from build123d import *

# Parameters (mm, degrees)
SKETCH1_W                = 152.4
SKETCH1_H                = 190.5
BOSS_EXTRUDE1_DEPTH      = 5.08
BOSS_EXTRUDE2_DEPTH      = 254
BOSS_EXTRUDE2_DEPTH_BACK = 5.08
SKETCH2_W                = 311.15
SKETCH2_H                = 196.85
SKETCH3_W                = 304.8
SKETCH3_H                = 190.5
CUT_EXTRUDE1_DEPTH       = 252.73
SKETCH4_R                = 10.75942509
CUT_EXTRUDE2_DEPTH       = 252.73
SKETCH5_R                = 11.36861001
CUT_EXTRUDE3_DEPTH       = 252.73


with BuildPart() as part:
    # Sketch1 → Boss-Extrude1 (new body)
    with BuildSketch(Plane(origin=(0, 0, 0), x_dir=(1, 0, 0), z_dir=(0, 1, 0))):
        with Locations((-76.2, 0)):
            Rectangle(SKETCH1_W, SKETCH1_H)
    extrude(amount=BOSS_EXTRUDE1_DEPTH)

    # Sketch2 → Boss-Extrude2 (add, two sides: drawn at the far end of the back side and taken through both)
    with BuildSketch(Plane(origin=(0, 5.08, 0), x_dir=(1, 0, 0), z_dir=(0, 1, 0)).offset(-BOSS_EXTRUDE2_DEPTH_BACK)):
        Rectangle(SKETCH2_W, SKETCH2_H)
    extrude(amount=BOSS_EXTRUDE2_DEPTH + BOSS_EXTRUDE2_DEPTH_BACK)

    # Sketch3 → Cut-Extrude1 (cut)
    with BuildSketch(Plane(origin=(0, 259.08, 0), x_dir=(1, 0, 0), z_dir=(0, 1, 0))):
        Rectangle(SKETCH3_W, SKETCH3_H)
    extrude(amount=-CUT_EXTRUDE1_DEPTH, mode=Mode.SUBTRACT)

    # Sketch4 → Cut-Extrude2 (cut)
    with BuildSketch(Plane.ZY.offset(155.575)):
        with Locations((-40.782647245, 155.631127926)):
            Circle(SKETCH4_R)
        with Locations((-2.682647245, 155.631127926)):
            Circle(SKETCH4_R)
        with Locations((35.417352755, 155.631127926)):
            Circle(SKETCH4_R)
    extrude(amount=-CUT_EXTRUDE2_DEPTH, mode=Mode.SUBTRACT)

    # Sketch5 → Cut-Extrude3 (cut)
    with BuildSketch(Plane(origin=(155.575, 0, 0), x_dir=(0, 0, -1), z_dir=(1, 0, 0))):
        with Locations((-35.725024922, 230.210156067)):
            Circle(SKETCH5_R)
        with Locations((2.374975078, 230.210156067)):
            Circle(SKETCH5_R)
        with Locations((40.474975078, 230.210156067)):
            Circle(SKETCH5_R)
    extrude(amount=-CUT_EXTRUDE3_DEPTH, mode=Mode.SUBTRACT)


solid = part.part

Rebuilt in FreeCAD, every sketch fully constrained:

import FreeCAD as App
import Part
import Sketcher
from FreeCAD import Vector
Q = App.Units.Quantity

doc = App.newDocument("Part")
body = doc.addObject("PartDesign::Body", "Body")

sketch1 = body.newObject("Sketcher::SketchObject", "Sketch")
sketch1.AttachmentSupport = (doc.getObject("XZ_Plane"), [""])
sketch1.MapMode = "FlatFace"
sketch1.addGeometry([
    Part.LineSegment(Vector(-152.4, -95.25, 0), Vector(-152.4, 95.25, 0)),
    Part.LineSegment(Vector(-152.4, 95.25, 0), Vector(0, 95.25, 0)),
    Part.LineSegment(Vector(0, 95.25, 0), Vector(0, -95.25, 0)),
    Part.LineSegment(Vector(0, -95.25, 0), Vector(-152.4, -95.25, 0)),
], False)
sketch1.addConstraint([
    Sketcher.Constraint("Coincident", 0, 2, 1, 1),
    Sketcher.Constraint("Coincident", 1, 2, 2, 1),
    Sketcher.Constraint("Coincident", 2, 2, 3, 1),
    Sketcher.Constraint("Coincident", 3, 2, 0, 1),
    Sketcher.Constraint("Vertical", 0),
    Sketcher.Constraint("Horizontal", 1),
    Sketcher.Constraint("Vertical", 2),
    Sketcher.Constraint("Horizontal", 3),
    Sketcher.Constraint("Symmetric", 1, 2, 2, 2, -1, 1),
    Sketcher.Constraint("DistanceX", 1, 1, 1, 2, Q("6 in")),
    Sketcher.Constraint("DistanceY", 0, 1, 0, 2, Q("7.5 in")),
])
pad1 = body.newObject("PartDesign::Pad", "Pad")
pad1.Profile = sketch1
pad1.Length = Q("0.2 in")
pad1.Reversed = True

sketch2 = body.newObject("Sketcher::SketchObject", "Sketch001")
sketch2.AttachmentSupport = (doc.getObject("XZ_Plane"), [""])
sketch2.MapMode = "FlatFace"
sketch2.AttachmentOffset = App.Placement(Vector(0, 0, -0.2 * 25.4), App.Rotation())
sketch2.addGeometry([
    Part.LineSegment(Vector(-155.575, -98.425, 0), Vector(-155.575, 98.425, 0)),
    Part.LineSegment(Vector(-155.575, 98.425, 0), Vector(155.575, 98.425, 0)),
    Part.LineSegment(Vector(155.575, 98.425, 0), Vector(155.575, -98.425, 0)),
    Part.LineSegment(Vector(155.575, -98.425, 0), Vector(-155.575, -98.425, 0)),
], False)
sketch2.addConstraint([
    Sketcher.Constraint("Coincident", 0, 2, 1, 1),
    Sketcher.Constraint("Coincident", 1, 2, 2, 1),
    Sketcher.Constraint("Coincident", 2, 2, 3, 1),
    Sketcher.Constraint("Coincident", 3, 2, 0, 1),
    Sketcher.Constraint("Vertical", 0),
    Sketcher.Constraint("Horizontal", 1),
    Sketcher.Constraint("Vertical", 2),
    Sketcher.Constraint("Horizontal", 3),
    Sketcher.Constraint("Symmetric", 0, 2, 2, 2, -1, 1),
    Sketcher.Constraint("DistanceX", 1, 1, 1, 2, Q("12.25 in")),
    Sketcher.Constraint("DistanceY", 0, 1, 0, 2, Q("7.75 in")),
])
pad2 = body.newObject("PartDesign::Pad", "Pad001")
pad2.Profile = sketch2
pad2.Type = "TwoLengths"
pad2.Length = Q("10 in")
pad2.Length2 = Q("0.2 in")
pad2.Reversed = True

sketch3 = body.newObject("Sketcher::SketchObject", "Sketch002")
sketch3.AttachmentSupport = (doc.getObject("XZ_Plane"), [""])
sketch3.MapMode = "FlatFace"
sketch3.AttachmentOffset = App.Placement(Vector(0, 0, -10.2 * 25.4), App.Rotation())
sketch3.addGeometry([
    Part.LineSegment(Vector(-152.4, -95.25, 0), Vector(-152.4, 95.25, 0)),
    Part.LineSegment(Vector(-152.4, 95.25, 0), Vector(152.4, 95.25, 0)),
    Part.LineSegment(Vector(152.4, 95.25, 0), Vector(152.4, -95.25, 0)),
    Part.LineSegment(Vector(152.4, -95.25, 0), Vector(-152.4, -95.25, 0)),
], False)
sketch3.addConstraint([
    Sketcher.Constraint("Coincident", 0, 2, 1, 1),
    Sketcher.Constraint("Coincident", 1, 2, 2, 1),
    Sketcher.Constraint("Coincident", 2, 2, 3, 1),
    Sketcher.Constraint("Coincident", 3, 2, 0, 1),
    Sketcher.Constraint("Vertical", 0),
    Sketcher.Constraint("Horizontal", 1),
    Sketcher.Constraint("Vertical", 2),
    Sketcher.Constraint("Horizontal", 3),
    Sketcher.Constraint("Symmetric", 0, 2, 2, 2, -1, 1),
    Sketcher.Constraint("DistanceX", 1, 1, 1, 2, Q("12 in")),
    Sketcher.Constraint("DistanceY", 0, 1, 0, 2, Q("7.5 in")),
])
pocket1 = body.newObject("PartDesign::Pocket", "Pocket")
pocket1.Profile = sketch3
pocket1.Length = Q("9.95 in")
pocket1.Reversed = True

sketch4 = body.newObject("Sketcher::SketchObject", "Sketch003")
sketch4.AttachmentSupport = (doc.getObject("YZ_Plane"), [""])
sketch4.MapMode = "FlatFace"
sketch4.AttachmentOffset = App.Placement(Vector(0, 0, -6.125 * 25.4), App.Rotation())
sketch4.addGeometry([
    Part.Circle(Vector(155.631128, -40.782647, 0), Vector(0, 0, 1), 10.759425),
    Part.Circle(Vector(155.631128, -2.682647, 0), Vector(0, 0, 1), 10.759425),
    Part.Circle(Vector(155.631128, 35.417353, 0), Vector(0, 0, 1), 10.759425),
], False)
sketch4.addConstraint([
    Sketcher.Constraint("Equal", 0, 1),
    Sketcher.Constraint("Equal", 1, 2),
    Sketcher.Constraint("Vertical", 0, 3, 1, 3),
    Sketcher.Constraint("Vertical", 1, 3, 2, 3),
    Sketcher.Constraint("DistanceY", 0, 3, 2, 3, Q("3 in")),
    Sketcher.Constraint("DistanceY", 0, 3, 1, 3, Q("1.5 in")),
    Sketcher.Constraint("Diameter", 0, 21.51885),
    Sketcher.Constraint("DistanceX", -1, 1, 0, 3, 155.631128),
    Sketcher.Constraint("DistanceY", 0, 3, -1, 1, 40.782647),
])
pocket2 = body.newObject("PartDesign::Pocket", "Pocket001")
pocket2.Profile = sketch4
pocket2.Length = Q("9.95 in")
pocket2.Reversed = True

sketch5 = body.newObject("Sketcher::SketchObject", "Sketch004")
sketch5.AttachmentSupport = (doc.getObject("YZ_Plane"), [""])
sketch5.MapMode = "FlatFace"
sketch5.AttachmentOffset = App.Placement(Vector(0, 0, 6.125 * 25.4), App.Rotation())
sketch5.addGeometry([
    Part.Circle(Vector(230.210156, 35.725025, 0), Vector(0, 0, 1), 11.36861),
    Part.Circle(Vector(230.210156, -2.374975, 0), Vector(0, 0, 1), 11.36861),
    Part.Circle(Vector(230.210156, -40.474975, 0), Vector(0, 0, 1), 11.36861),
], False)
sketch5.addConstraint([
    Sketcher.Constraint("Equal", 0, 1),
    Sketcher.Constraint("Equal", 1, 2),
    Sketcher.Constraint("Vertical", 0, 3, 1, 3),
    Sketcher.Constraint("Vertical", 1, 3, 2, 3),
    Sketcher.Constraint("DistanceY", 2, 3, 0, 3, Q("3 in")),
    Sketcher.Constraint("DistanceY", 1, 3, 0, 3, Q("1.5 in")),
    Sketcher.Constraint("Diameter", 0, 22.73722),
    Sketcher.Constraint("DistanceX", -1, 1, 0, 3, 230.210156),
    Sketcher.Constraint("DistanceY", -1, 1, 0, 3, 35.725025),
])
pocket3 = body.newObject("PartDesign::Pocket", "Pocket002")
pocket3.Profile = sketch5
pocket3.Length = Q("9.95 in")

doc.recompute()
